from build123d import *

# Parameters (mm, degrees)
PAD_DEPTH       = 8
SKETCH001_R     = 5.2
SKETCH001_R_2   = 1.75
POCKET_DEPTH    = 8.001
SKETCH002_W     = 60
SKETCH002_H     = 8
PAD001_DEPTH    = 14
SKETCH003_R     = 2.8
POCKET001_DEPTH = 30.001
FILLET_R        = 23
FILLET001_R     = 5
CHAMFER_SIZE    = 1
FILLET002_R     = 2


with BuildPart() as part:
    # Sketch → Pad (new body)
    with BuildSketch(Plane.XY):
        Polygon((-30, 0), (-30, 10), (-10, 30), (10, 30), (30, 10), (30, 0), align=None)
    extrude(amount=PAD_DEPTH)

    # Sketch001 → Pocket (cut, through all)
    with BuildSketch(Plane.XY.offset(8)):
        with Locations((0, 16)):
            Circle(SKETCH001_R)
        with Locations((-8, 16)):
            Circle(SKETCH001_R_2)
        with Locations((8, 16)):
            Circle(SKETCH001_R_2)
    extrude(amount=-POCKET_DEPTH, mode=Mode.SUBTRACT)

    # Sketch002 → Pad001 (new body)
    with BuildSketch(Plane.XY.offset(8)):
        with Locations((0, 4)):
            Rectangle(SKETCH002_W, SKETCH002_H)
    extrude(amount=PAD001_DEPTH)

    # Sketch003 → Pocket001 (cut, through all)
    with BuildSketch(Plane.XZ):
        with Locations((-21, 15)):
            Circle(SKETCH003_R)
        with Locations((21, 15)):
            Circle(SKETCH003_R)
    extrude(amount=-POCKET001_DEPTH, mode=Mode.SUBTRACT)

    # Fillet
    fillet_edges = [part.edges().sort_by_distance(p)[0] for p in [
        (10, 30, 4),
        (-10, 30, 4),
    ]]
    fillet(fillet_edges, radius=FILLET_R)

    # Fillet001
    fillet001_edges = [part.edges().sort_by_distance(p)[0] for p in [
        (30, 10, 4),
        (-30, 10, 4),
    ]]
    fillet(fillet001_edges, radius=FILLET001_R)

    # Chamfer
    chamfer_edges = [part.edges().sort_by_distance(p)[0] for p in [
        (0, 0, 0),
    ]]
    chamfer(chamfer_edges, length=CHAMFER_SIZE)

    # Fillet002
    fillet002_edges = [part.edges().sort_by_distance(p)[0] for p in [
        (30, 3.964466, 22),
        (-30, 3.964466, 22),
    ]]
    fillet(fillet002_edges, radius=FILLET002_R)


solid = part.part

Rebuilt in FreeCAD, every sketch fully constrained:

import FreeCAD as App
import Part
import Sketcher
from FreeCAD import Vector


def edges_at(feature, points):
    """Names of the edges that pass closest to the given points."""
    edges = feature.Shape.Edges
    near = lambda p: min(range(len(edges)), key=lambda i: edges[i].distToShape(Part.Vertex(*p))[0])
    return sorted({f"Edge{near(p) + 1}" for p in points})

doc = App.newDocument("Part")
params = doc.addObject("Spreadsheet::Sheet", "Params")
for row, (alias, value) in enumerate([
    ("sketch1_width", "60 mm"),
    ("sketch1_width2", "20 mm"),
    ("sketch1_height", "10 mm"),
    ("pad1_length", "8 mm"),
    ("sketch2_diameter", "10.4 mm"),
    ("sketch2_diameter2", "3.5 mm"),
    ("sketch3_width", "60 mm"),
    ("sketch3_height", "8 mm"),
    ("pad2_length", "14 mm"),
    ("sketch4_diameter", "5.6 mm"),
    ("fillet_radius", "23 mm"),
    ("fillet2_radius", "5 mm"),
    ("chamfer_size", "1 mm"),
    ("fillet3_radius", "2 mm"),
], start=1):
    params.set(f"A{row}", alias)
    params.set(f"B{row}", "=" + value)
    params.setAlias(f"B{row}", alias)

body = doc.addObject("PartDesign::Body", "Body")

sketch1 = doc.addObject("Sketcher::SketchObject", "Sketch")
body.addObject(sketch1)
sketch1.AttachmentSupport = (doc.XY_Plane, [""])
sketch1.MapMode = "FlatFace"
sketch1.addGeometry(Part.LineSegment(Vector(-30, 10, 0), Vector(-30, 0, 0)), False)
sketch1.addGeometry(Part.LineSegment(Vector(-30, 0, 0), Vector(30, 0, 0)), False)
sketch1.addGeometry(Part.LineSegment(Vector(30, 0, 0), Vector(30, 10, 0)), False)
sketch1.addGeometry(Part.LineSegment(Vector(30, 10, 0), Vector(10, 30, 0)), False)
sketch1.addGeometry(Part.LineSegment(Vector(10, 30, 0), Vector(-10, 30, 0)), False)
sketch1.addGeometry(Part.LineSegment(Vector(-10, 30, 0), Vector(-30, 10, 0)), False)
sketch1.addConstraint(Sketcher.Constraint("Coincident", 0, 2, 1, 1))
sketch1.addConstraint(Sketcher.Constraint("Coincident", 1, 2, 2, 1))
sketch1.addConstraint(Sketcher.Constraint("Coincident", 2, 2, 3, 1))
sketch1.addConstraint(Sketcher.Constraint("Coincident", 3, 2, 4, 1))
sketch1.addConstraint(Sketcher.Constraint("Coincident", 4, 2, 5, 1))
sketch1.addConstraint(Sketcher.Constraint("Coincident", 5, 2, 0, 1))
sketch1.addConstraint(Sketcher.Constraint("Vertical", 0))
sketch1.addConstraint(Sketcher.Constraint("Horizontal", 1))
sketch1.addConstraint(Sketcher.Constraint("Vertical", 2))
sketch1.addConstraint(Sketcher.Constraint("Horizontal", 4))
sketch1.addConstraint(Sketcher.Constraint("Symmetric", 0, 2, 1, 2, -1, 1))
sketch1.addConstraint(Sketcher.Constraint("Perpendicular", 3, 5))
sketch1.addConstraint(Sketcher.Constraint("Horizontal", 2, 2, 5, 2))
sketch1.addConstraint(Sketcher.Constraint("Equal", 3, 5))
sketch1.addConstraint(Sketcher.Constraint("DistanceX", 1, 1, 1, 2, 60.0))
sketch1.addConstraint(Sketcher.Constraint("DistanceX", 4, 2, 4, 1, 20.0))
sketch1.addConstraint(Sketcher.Constraint("DistanceY", 0, 2, 0, 1, 10.0))
sketch1.setExpression("Constraints[14]", "Params.sketch1_width")
sketch1.setExpression("Constraints[15]", "Params.sketch1_width2")
sketch1.setExpression("Constraints[16]", "Params.sketch1_height")
pad1 = doc.addObject("PartDesign::Pad", "Pad")
body.addObject(pad1)
pad1.Profile = sketch1
pad1.setExpression("Length", "Params.pad1_length")

sketch2 = doc.addObject("Sketcher::SketchObject", "Sketch001")
body.addObject(sketch2)
sketch2.AttachmentSupport = (doc.XY_Plane, [""])
sketch2.MapMode = "FlatFace"
sketch2.AttachmentOffset = App.Placement(Vector(0, 0, 8), App.Rotation())
sketch2.addGeometry(Part.Circle(Vector(0, 16, 0), Vector(0, 0, 1), 5.2), False)
sketch2.addGeometry(Part.Circle(Vector(-8, 16, 0), Vector(0, 0, 1), 1.75), False)
sketch2.addGeometry(Part.Circle(Vector(8, 16, 0), Vector(0, 0, 1), 1.75), False)
sketch2.addConstraint(Sketcher.Constraint("Equal", 1, 2))
sketch2.addConstraint(Sketcher.Constraint("Symmetric", 1, 3, 2, 3, -2))
sketch2.addConstraint(Sketcher.Constraint("PointOnObject", 0, 3, -2))
sketch2.addConstraint(Sketcher.Constraint("Horizontal", 0, 3, 1, 3))
sketch2.addConstraint(Sketcher.Constraint("Diameter", 0, 10.4))
sketch2.addConstraint(Sketcher.Constraint("Diameter", 1, 3.5))
sketch2.addConstraint(Sketcher.Constraint("DistanceY", -1, 1, 0, 3, 16.0))
sketch2.addConstraint(Sketcher.Constraint("DistanceX", 1, 3, -1, 1, 8.0))
sketch2.setExpression("Constraints[4]", "Params.sketch2_diameter")
sketch2.setExpression("Constraints[5]", "Params.sketch2_diameter2")
pocket1 = doc.addObject("PartDesign::Pocket", "Pocket")
body.addObject(pocket1)
pocket1.Profile = sketch2
pocket1.Type = "ThroughAll"

sketch3 = doc.addObject("Sketcher::SketchObject", "Sketch002")
body.addObject(sketch3)
sketch3.AttachmentSupport = (doc.XY_Plane, [""])
sketch3.MapMode = "FlatFace"
sketch3.AttachmentOffset = App.Placement(Vector(0, 0, 8), App.Rotation())
sketch3.addGeometry(Part.LineSegment(Vector(-30, 8, 0), Vector(-30, 0, 0)), False)
sketch3.addGeometry(Part.LineSegment(Vector(-30, 0, 0), Vector(30, 0, 0)), False)
sketch3.addGeometry(Part.LineSegment(Vector(30, 0, 0), Vector(30, 8, 0)), False)
sketch3.addGeometry(Part.LineSegment(Vector(30, 8, 0), Vector(-30, 8, 0)), False)
sketch3.addConstraint(Sketcher.Constraint("Coincident", 0, 2, 1, 1))
sketch3.addConstraint(Sketcher.Constraint("Coincident", 1, 2, 2, 1))
sketch3.addConstraint(Sketcher.Constraint("Coincident", 2, 2, 3, 1))
sketch3.addConstraint(Sketcher.Constraint("Coincident", 3, 2, 0, 1))
sketch3.addConstraint(Sketcher.Constraint("Vertical", 0))
sketch3.addConstraint(Sketcher.Constraint("Horizontal", 1))
sketch3.addConstraint(Sketcher.Constraint("Vertical", 2))
sketch3.addConstraint(Sketcher.Constraint("Horizontal", 3))
sketch3.addConstraint(Sketcher.Constraint("Symmetric", 0, 2, 1, 2, -1, 1))
sketch3.addConstraint(Sketcher.Constraint("DistanceX", 1, 1, 1, 2, 60.0))
sketch3.addConstraint(Sketcher.Constraint("DistanceY", 0, 2, 0, 1, 8.0))
sketch3.setExpression("Constraints[9]", "Params.sketch3_width")
sketch3.setExpression("Constraints[10]", "Params.sketch3_height")
pad2 = doc.addObject("PartDesign::Pad", "Pad001")
body.addObject(pad2)
pad2.Profile = sketch3
pad2.setExpression("Length", "Params.pad2_length")

sketch4 = doc.addObject("Sketcher::SketchObject", "Sketch003")
body.addObject(sketch4)
sketch4.AttachmentSupport = (doc.XZ_Plane, [""])
sketch4.MapMode = "FlatFace"
sketch4.addGeometry(Part.Circle(Vector(-21, 15, 0), Vector(0, 0, 1), 2.8), False)
sketch4.addGeometry(Part.Circle(Vector(21, 15, 0), Vector(0, 0, 1), 2.8), False)
sketch4.addConstraint(Sketcher.Constraint("Equal", 0, 1))
sketch4.addConstraint(Sketcher.Constraint("Symmetric", 0, 3, 1, 3, -2))
sketch4.addConstraint(Sketcher.Constraint("Diameter", 0, 5.6))
sketch4.addConstraint(Sketcher.Constraint("DistanceX", 0, 3, -1, 1, 21.0))
sketch4.addConstraint(Sketcher.Constraint("DistanceY", -1, 1, 0, 3, 15.0))
sketch4.setExpression("Constraints[2]", "Params.sketch4_diameter")
pocket2 = doc.addObject("PartDesign::Pocket", "Pocket001")
body.addObject(pocket2)
pocket2.Profile = sketch4
pocket2.Type = "ThroughAll"
doc.recompute()

fillet = doc.addObject("PartDesign::Fillet", "Fillet")
body.addObject(fillet)
fillet.Base = (pocket2, edges_at(pocket2, [(10, 30, 4), (-10, 30, 4)]))
fillet.setExpression("Radius", "Params.fillet_radius")
doc.recompute()

fillet2 = doc.addObject("PartDesign::Fillet", "Fillet001")
body.addObject(fillet2)
fillet2.Base = (fillet, edges_at(fillet, [(30, 10, 4), (-30, 10, 4)]))
fillet2.setExpression("Radius", "Params.fillet2_radius")
doc.recompute()

chamfer = doc.addObject("PartDesign::Chamfer", "Chamfer")
body.addObject(chamfer)
chamfer.Base = (fillet2, edges_at(fillet2, [(0, 0, 0)]))
chamfer.setExpression("Size", "Params.chamfer_size")
doc.recompute()

fillet3 = doc.addObject("PartDesign::Fillet", "Fillet002")
body.addObject(fillet3)
fillet3.Base = (chamfer, edges_at(chamfer, [(30, 3.964, 22), (-30, 3.964, 22)]))
fillet3.setExpression("Radius", "Params.fillet3_radius")

doc.recompute()
